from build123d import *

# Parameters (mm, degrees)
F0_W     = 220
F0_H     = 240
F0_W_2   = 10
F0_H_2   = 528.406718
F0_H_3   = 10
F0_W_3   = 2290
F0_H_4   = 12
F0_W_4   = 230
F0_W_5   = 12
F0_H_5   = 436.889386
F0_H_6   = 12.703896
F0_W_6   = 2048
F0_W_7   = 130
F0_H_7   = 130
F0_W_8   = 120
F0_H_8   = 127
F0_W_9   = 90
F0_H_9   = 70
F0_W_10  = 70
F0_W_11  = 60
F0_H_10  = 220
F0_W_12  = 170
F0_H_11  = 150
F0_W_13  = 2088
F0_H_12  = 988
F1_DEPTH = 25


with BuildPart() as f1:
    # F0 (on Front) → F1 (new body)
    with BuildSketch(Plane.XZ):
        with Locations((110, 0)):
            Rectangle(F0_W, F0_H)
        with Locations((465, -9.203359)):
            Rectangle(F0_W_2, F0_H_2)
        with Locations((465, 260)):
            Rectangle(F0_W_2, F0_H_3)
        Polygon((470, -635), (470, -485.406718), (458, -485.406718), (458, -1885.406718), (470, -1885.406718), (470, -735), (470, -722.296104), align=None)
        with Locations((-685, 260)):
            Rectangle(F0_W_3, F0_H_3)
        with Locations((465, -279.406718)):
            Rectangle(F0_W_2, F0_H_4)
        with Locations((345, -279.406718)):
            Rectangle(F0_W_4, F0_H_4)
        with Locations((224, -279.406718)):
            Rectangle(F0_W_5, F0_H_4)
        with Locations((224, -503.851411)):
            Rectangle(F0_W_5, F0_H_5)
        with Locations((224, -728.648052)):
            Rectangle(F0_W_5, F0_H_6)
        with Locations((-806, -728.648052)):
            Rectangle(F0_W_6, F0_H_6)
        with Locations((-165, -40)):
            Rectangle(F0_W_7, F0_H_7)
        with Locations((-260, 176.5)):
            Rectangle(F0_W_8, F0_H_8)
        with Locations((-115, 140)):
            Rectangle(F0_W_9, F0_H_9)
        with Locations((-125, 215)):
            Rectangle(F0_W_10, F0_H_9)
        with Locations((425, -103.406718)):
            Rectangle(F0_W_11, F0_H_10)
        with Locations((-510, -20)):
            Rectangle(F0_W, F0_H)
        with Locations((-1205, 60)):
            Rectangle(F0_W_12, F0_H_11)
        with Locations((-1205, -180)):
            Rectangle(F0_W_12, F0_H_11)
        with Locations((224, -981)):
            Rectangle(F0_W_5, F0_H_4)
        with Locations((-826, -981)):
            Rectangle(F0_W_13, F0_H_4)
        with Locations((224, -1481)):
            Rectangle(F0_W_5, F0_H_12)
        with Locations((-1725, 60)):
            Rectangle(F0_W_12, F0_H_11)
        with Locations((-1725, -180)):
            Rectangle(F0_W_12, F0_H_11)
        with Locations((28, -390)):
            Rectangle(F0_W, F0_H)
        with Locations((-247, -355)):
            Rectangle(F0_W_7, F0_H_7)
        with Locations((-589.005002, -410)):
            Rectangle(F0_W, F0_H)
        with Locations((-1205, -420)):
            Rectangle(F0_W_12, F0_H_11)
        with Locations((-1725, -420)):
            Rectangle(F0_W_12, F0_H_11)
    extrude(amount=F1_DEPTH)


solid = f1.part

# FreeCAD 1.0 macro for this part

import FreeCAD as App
import Part
import Sketcher
from FreeCAD import Vector
Q = App.Units.Quantity

doc = App.newDocument("Part")
body = doc.addObject("PartDesign::Body", "Body")
body.AllowCompound = True

# Sketch on XZ plane
sketch1 = body.newObject("Sketcher::SketchObject", "Sketch")
sketch1.AttachmentSupport = (doc.getObject("XZ_Plane"), [""])
sketch1.MapMode = "FlatFace"
sketch1.addGeometry(Part.LineSegment(Vector(0, 120, 0), Vector(0, -120, 0)), False)
sketch1.addGeometry(Part.LineSegment(Vector(0, -120, 0), Vector(220, -120, 0)), False)
sketch1.addGeometry(Part.LineSegment(Vector(220, -120, 0), Vector(220, 120, 0)), False)
sketch1.addGeometry(Part.LineSegment(Vector(220, 120, 0), Vector(0, 120, 0)), False)
sketch1.addGeometry(Part.LineSegment(Vector(470, 265, 0), Vector(-1830, 265, 0)), False)
sketch1.addGeometry(Part.LineSegment(Vector(-1830, 265, 0), Vector(-1830, 255, 0)), False)
sketch1.addGeometry(Part.LineSegment(Vector(-1830, 255, 0), Vector(460, 255, 0)), False)
sketch1.addGeometry(Part.LineSegment(Vector(460, 255, 0), Vector(460, -273.406718, 0)), False)
sketch1.addGeometry(Part.LineSegment(Vector(460, -273.406718, 0), Vector(218, -273.406718, 0)), False)
sketch1.addGeometry(Part.LineSegment(Vector(218, -273.406718, 0), Vector(218, -722.296104, 0)), False)
sketch1.addGeometry(Part.LineSegment(Vector(218, -722.296104, 0), Vector(-1830, -722.296104, 0)), False)
sketch1.addGeometry(Part.LineSegment(Vector(-1830, -722.296104, 0), Vector(-1830, -735, 0)), False)
sketch1.addGeometry(Part.LineSegment(Vector(-1830, -735, 0), Vector(230, -735, 0)), False)
sketch1.addGeometry(Part.LineSegment(Vector(230, -735, 0), Vector(230, -285.406718, 0)), False)
sketch1.addGeometry(Part.LineSegment(Vector(230, -285.406718, 0), Vector(470, -285.406718, 0)), False)
sketch1.addGeometry(Part.LineSegment(Vector(470, -285.406718, 0), Vector(470, 265, 0)), False)
sketch1.addGeometry(Part.LineSegment(Vector(470, -485.406718, 0), Vector(458, -485.406718, 0)), False)
sketch1.addGeometry(Part.LineSegment(Vector(458, -485.406718, 0), Vector(458, -1885.406718, 0)), False)
sketch1.addGeometry(Part.LineSegment(Vector(458, -1885.406718, 0), Vector(470, -1885.406718, 0)), False)
sketch1.addGeometry(Part.LineSegment(Vector(470, -1885.406718, 0), Vector(470, -485.406718, 0)), False)
sketch1.addGeometry(Part.LineSegment(Vector(-230, 25, 0), Vector(-230, -105, 0)), False)
sketch1.addGeometry(Part.LineSegment(Vector(-230, -105, 0), Vector(-100, -105, 0)), False)
sketch1.addGeometry(Part.LineSegment(Vector(-100, -105, 0), Vector(-100, 25, 0)), False)
sketch1.addGeometry(Part.LineSegment(Vector(-100, 25, 0), Vector(-230, 25, 0)), False)
sketch1.addGeometry(Part.LineSegment(Vector(-320, 240, 0), Vector(-320, 113, 0)), False)
sketch1.addGeometry(Part.LineSegment(Vector(-320, 113, 0), Vector(-200, 113, 0)), False)
sketch1.addGeometry(Part.LineSegment(Vector(-200, 113, 0), Vector(-200, 240, 0)), False)
sketch1.addGeometry(Part.LineSegment(Vector(-200, 240, 0), Vector(-320, 240, 0)), False)
sketch1.addGeometry(Part.LineSegment(Vector(-160, 175, 0), Vector(-160, 105, 0)), False)
sketch1.addGeometry(Part.LineSegment(Vector(-160, 105, 0), Vector(-70, 105, 0)), False)
sketch1.addGeometry(Part.LineSegment(Vector(-70, 105, 0), Vector(-70, 175, 0)), False)
sketch1.addGeometry(Part.LineSegment(Vector(-70, 175, 0), Vector(-160, 175, 0)), False)
sketch1.addGeometry(Part.LineSegment(Vector(-160, 250, 0), Vector(-160, 180, 0)), False)
sketch1.addGeometry(Part.LineSegment(Vector(-160, 180, 0), Vector(-90, 180, 0)), False)
sketch1.addGeometry(Part.LineSegment(Vector(-90, 180, 0), Vector(-90, 250, 0)), False)
sketch1.addGeometry(Part.LineSegment(Vector(-90, 250, 0), Vector(-160, 250, 0)), False)
sketch1.addGeometry(Part.LineSegment(Vector(395, 6.593282, 0), Vector(395, -213.406718, 0)), False)
sketch1.addGeometry(Part.LineSegment(Vector(395, -213.406718, 0), Vector(455, -213.406718, 0)), False)
sketch1.addGeometry(Part.LineSegment(Vector(455, -213.406718, 0), Vector(455, 6.593282, 0)), False)
sketch1.addGeometry(Part.LineSegment(Vector(455, 6.593282, 0), Vector(395, 6.593282, 0)), False)
sketch1.addGeometry(Part.LineSegment(Vector(-620, 100, 0), Vector(-620, -140, 0)), False)
sketch1.addGeometry(Part.LineSegment(Vector(-620, -140, 0), Vector(-400, -140, 0)), False)
sketch1.addGeometry(Part.LineSegment(Vector(-400, -140, 0), Vector(-400, 100, 0)), False)
sketch1.addGeometry(Part.LineSegment(Vector(-400, 100, 0), Vector(-620, 100, 0)), False)
sketch1.addGeometry(Part.LineSegment(Vector(-1290, 135, 0), Vector(-1290, -15, 0)), False)
sketch1.addGeometry(Part.LineSegment(Vector(-1290, -15, 0), Vector(-1120, -15, 0)), False)
sketch1.addGeometry(Part.LineSegment(Vector(-1120, -15, 0), Vector(-1120, 135, 0)), False)
sketch1.addGeometry(Part.LineSegment(Vector(-1120, 135, 0), Vector(-1290, 135, 0)), False)
sketch1.addGeometry(Part.LineSegment(Vector(-1290, -105, 0), Vector(-1290, -255, 0)), False)
sketch1.addGeometry(Part.LineSegment(Vector(-1290, -255, 0), Vector(-1120, -255, 0)), False)
sketch1.addGeometry(Part.LineSegment(Vector(-1120, -255, 0), Vector(-1120, -105, 0)), False)
sketch1.addGeometry(Part.LineSegment(Vector(-1120, -105, 0), Vector(-1290, -105, 0)), False)
sketch1.addGeometry(Part.LineSegment(Vector(230, -975, 0), Vector(-1870, -975, 0)), False)
sketch1.addGeometry(Part.LineSegment(Vector(-1870, -975, 0), Vector(-1870, -987, 0)), False)
sketch1.addGeometry(Part.LineSegment(Vector(-1870, -987, 0), Vector(218, -987, 0)), False)
sketch1.addGeometry(Part.LineSegment(Vector(218, -987, 0), Vector(218, -1975, 0)), False)
sketch1.addGeometry(Part.LineSegment(Vector(218, -1975, 0), Vector(230, -1975, 0)), False)
sketch1.addGeometry(Part.LineSegment(Vector(230, -1975, 0), Vector(230, -975, 0)), False)
sketch1.addGeometry(Part.LineSegment(Vector(-1810, 135, 0), Vector(-1810, -15, 0)), False)
sketch1.addGeometry(Part.LineSegment(Vector(-1810, -15, 0), Vector(-1640, -15, 0)), False)
sketch1.addGeometry(Part.LineSegment(Vector(-1640, -15, 0), Vector(-1640, 135, 0)), False)
sketch1.addGeometry(Part.LineSegment(Vector(-1640, 135, 0), Vector(-1810, 135, 0)), False)
sketch1.addGeometry(Part.LineSegment(Vector(-1810, -105, 0), Vector(-1810, -255, 0)), False)
sketch1.addGeometry(Part.LineSegment(Vector(-1810, -255, 0), Vector(-1640, -255, 0)), False)
sketch1.addGeometry(Part.LineSegment(Vector(-1640, -255, 0), Vector(-1640, -105, 0)), False)
sketch1.addGeometry(Part.LineSegment(Vector(-1640, -105, 0), Vector(-1810, -105, 0)), False)
sketch1.addGeometry(Part.LineSegment(Vector(-82, -270, 0), Vector(-82, -510, 0)), False)
sketch1.addGeometry(Part.LineSegment(Vector(-82, -510, 0), Vector(138, -510, 0)), False)
sketch1.addGeometry(Part.LineSegment(Vector(138, -510, 0), Vector(138, -270, 0)), False)
sketch1.addGeometry(Part.LineSegment(Vector(138, -270, 0), Vector(-82, -270, 0)), False)
sketch1.addGeometry(Part.LineSegment(Vector(-312, -290, 0), Vector(-312, -420, 0)), False)
sketch1.addGeometry(Part.LineSegment(Vector(-312, -420, 0), Vector(-182, -420, 0)), False)
sketch1.addGeometry(Part.LineSegment(Vector(-182, -420, 0), Vector(-182, -290, 0)), False)
sketch1.addGeometry(Part.LineSegment(Vector(-182, -290, 0), Vector(-312, -290, 0)), False)
sketch1.addGeometry(Part.LineSegment(Vector(-699.005002, -290, 0), Vector(-699.005002, -530, 0)), False)
sketch1.addGeometry(Part.LineSegment(Vector(-699.005002, -530, 0), Vector(-479.005002, -530, 0)), False)
sketch1.addGeometry(Part.LineSegment(Vector(-479.005002, -530, 0), Vector(-479.005002, -290, 0)), False)
sketch1.addGeometry(Part.LineSegment(Vector(-479.005002, -290, 0), Vector(-699.005002, -290, 0)), False)
sketch1.addGeometry(Part.LineSegment(Vector(-1290, -345, 0), Vector(-1290, -495, 0)), False)
sketch1.addGeometry(Part.LineSegment(Vector(-1290, -495, 0), Vector(-1120, -495, 0)), False)
sketch1.addGeometry(Part.LineSegment(Vector(-1120, -495, 0), Vector(-1120, -345, 0)), False)
sketch1.addGeometry(Part.LineSegment(Vector(-1120, -345, 0), Vector(-1290, -345, 0)), False)
sketch1.addGeometry(Part.LineSegment(Vector(-1810, -345, 0), Vector(-1810, -495, 0)), False)
sketch1.addGeometry(Part.LineSegment(Vector(-1810, -495, 0), Vector(-1640, -495, 0)), False)
sketch1.addGeometry(Part.LineSegment(Vector(-1640, -495, 0), Vector(-1640, -345, 0)), False)
sketch1.addGeometry(Part.LineSegment(Vector(-1640, -345, 0), Vector(-1810, -345, 0)), False)
sketch1.addConstraint(Sketcher.Constraint("Coincident", 0, 2, 1, 1))
sketch1.addConstraint(Sketcher.Constraint("Coincident", 1, 2, 2, 1))
sketch1.addConstraint(Sketcher.Constraint("Coincident", 2, 2, 3, 1))
sketch1.addConstraint(Sketcher.Constraint("Coincident", 3, 2, 0, 1))
sketch1.addConstraint(Sketcher.Constraint("Coincident", 4, 2, 5, 1))
sketch1.addConstraint(Sketcher.Constraint("Coincident", 5, 2, 6, 1))
sketch1.addConstraint(Sketcher.Constraint("Coincident", 6, 2, 7, 1))
sketch1.addConstraint(Sketcher.Constraint("Coincident", 7, 2, 8, 1))
sketch1.addConstraint(Sketcher.Constraint("Coincident", 8, 2, 9, 1))
sketch1.addConstraint(Sketcher.Constraint("Coincident", 9, 2, 10, 1))
sketch1.addConstraint(Sketcher.Constraint("Coincident", 10, 2, 11, 1))
sketch1.addConstraint(Sketcher.Constraint("Coincident", 11, 2, 12, 1))
sketch1.addConstraint(Sketcher.Constraint("Coincident", 12, 2, 13, 1))
sketch1.addConstraint(Sketcher.Constraint("Coincident", 13, 2, 14, 1))
sketch1.addConstraint(Sketcher.Constraint("Coincident", 14, 2, 15, 1))
sketch1.addConstraint(Sketcher.Constraint("Coincident", 15, 2, 4, 1))
sketch1.addConstraint(Sketcher.Constraint("Coincident", 16, 2, 17, 1))
sketch1.addConstraint(Sketcher.Constraint("Coincident", 17, 2, 18, 1))
sketch1.addConstraint(Sketcher.Constraint("Coincident", 18, 2, 19, 1))
sketch1.addConstraint(Sketcher.Constraint("Coincident", 19, 2, 16, 1))
sketch1.addConstraint(Sketcher.Constraint("Coincident", 20, 2, 21, 1))
sketch1.addConstraint(Sketcher.Constraint("Coincident", 21, 2, 22, 1))
sketch1.addConstraint(Sketcher.Constraint("Coincident", 22, 2, 23, 1))
sketch1.addConstraint(Sketcher.Constraint("Coincident", 23, 2, 20, 1))
sketch1.addConstraint(Sketcher.Constraint("Coincident", 24, 2, 25, 1))
sketch1.addConstraint(Sketcher.Constraint("Coincident", 25, 2, 26, 1))
sketch1.addConstraint(Sketcher.Constraint("Coincident", 26, 2, 27, 1))
sketch1.addConstraint(Sketcher.Constraint("Coincident", 27, 2, 24, 1))
sketch1.addConstraint(Sketcher.Constraint("Coincident", 28, 2, 29, 1))
sketch1.addConstraint(Sketcher.Constraint("Coincident", 29, 2, 30, 1))
sketch1.addConstraint(Sketcher.Constraint("Coincident", 30, 2, 31, 1))
sketch1.addConstraint(Sketcher.Constraint("Coincident", 31, 2, 28, 1))
sketch1.addConstraint(Sketcher.Constraint("Coincident", 32, 2, 33, 1))
sketch1.addConstraint(Sketcher.Constraint("Coincident", 33, 2, 34, 1))
sketch1.addConstraint(Sketcher.Constraint("Coincident", 34, 2, 35, 1))
sketch1.addConstraint(Sketcher.Constraint("Coincident", 35, 2, 32, 1))
sketch1.addConstraint(Sketcher.Constraint("Coincident", 36, 2, 37, 1))
sketch1.addConstraint(Sketcher.Constraint("Coincident", 37, 2, 38, 1))
sketch1.addConstraint(Sketcher.Constraint("Coincident", 38, 2, 39, 1))
sketch1.addConstraint(Sketcher.Constraint("Coincident", 39, 2, 36, 1))
sketch1.addConstraint(Sketcher.Constraint("Coincident", 40, 2, 41, 1))
sketch1.addConstraint(Sketcher.Constraint("Coincident", 41, 2, 42, 1))
sketch1.addConstraint(Sketcher.Constraint("Coincident", 42, 2, 43, 1))
sketch1.addConstraint(Sketcher.Constraint("Coincident", 43, 2, 40, 1))
sketch1.addConstraint(Sketcher.Constraint("Coincident", 44, 2, 45, 1))
sketch1.addConstraint(Sketcher.Constraint("Coincident", 45, 2, 46, 1))
sketch1.addConstraint(Sketcher.Constraint("Coincident", 46, 2, 47, 1))
sketch1.addConstraint(Sketcher.Constraint("Coincident", 47, 2, 44, 1))
sketch1.addConstraint(Sketcher.Constraint("Coincident", 48, 2, 49, 1))
sketch1.addConstraint(Sketcher.Constraint("Coincident", 49, 2, 50, 1))
sketch1.addConstraint(Sketcher.Constraint("Coincident", 50, 2, 51, 1))
sketch1.addConstraint(Sketcher.Constraint("Coincident", 51, 2, 48, 1))
sketch1.addConstraint(Sketcher.Constraint("Coincident", 52, 2, 53, 1))
sketch1.addConstraint(Sketcher.Constraint("Coincident", 53, 2, 54, 1))
sketch1.addConstraint(Sketcher.Constraint("Coincident", 54, 2, 55, 1))
sketch1.addConstraint(Sketcher.Constraint("Coincident", 55, 2, 56, 1))
sketch1.addConstraint(Sketcher.Constraint("Coincident", 56, 2, 57, 1))
sketch1.addConstraint(Sketcher.Constraint("Coincident", 57, 2, 52, 1))
sketch1.addConstraint(Sketcher.Constraint("Coincident", 58, 2, 59, 1))
sketch1.addConstraint(Sketcher.Constraint("Coincident", 59, 2, 60, 1))
sketch1.addConstraint(Sketcher.Constraint("Coincident", 60, 2, 61, 1))
sketch1.addConstraint(Sketcher.Constraint("Coincident", 61, 2, 58, 1))
sketch1.addConstraint(Sketcher.Constraint("Coincident", 62, 2, 63, 1))
sketch1.addConstraint(Sketcher.Constraint("Coincident", 63, 2, 64, 1))
sketch1.addConstraint(Sketcher.Constraint("Coincident", 64, 2, 65, 1))
sketch1.addConstraint(Sketcher.Constraint("Coincident", 65, 2, 62, 1))
sketch1.addConstraint(Sketcher.Constraint("Coincident", 66, 2, 67, 1))
sketch1.addConstraint(Sketcher.Constraint("Coincident", 67, 2, 68, 1))
sketch1.addConstraint(Sketcher.Constraint("Coincident", 68, 2, 69, 1))
sketch1.addConstraint(Sketcher.Constraint("Coincident", 69, 2, 66, 1))
sketch1.addConstraint(Sketcher.Constraint("Coincident", 70, 2, 71, 1))
sketch1.addConstraint(Sketcher.Constraint("Coincident", 71, 2, 72, 1))
sketch1.addConstraint(Sketcher.Constraint("Coincident", 72, 2, 73, 1))
sketch1.addConstraint(Sketcher.Constraint("Coincident", 73, 2, 70, 1))
sketch1.addConstraint(Sketcher.Constraint("Coincident", 74, 2, 75, 1))
sketch1.addConstraint(Sketcher.Constraint("Coincident", 75, 2, 76, 1))
sketch1.addConstraint(Sketcher.Constraint("Coincident", 76, 2, 77, 1))
sketch1.addConstraint(Sketcher.Constraint("Coincident", 77, 2, 74, 1))
sketch1.addConstraint(Sketcher.Constraint("Coincident", 78, 2, 79, 1))
sketch1.addConstraint(Sketcher.Constraint("Coincident", 79, 2, 80, 1))
sketch1.addConstraint(Sketcher.Constraint("Coincident", 80, 2, 81, 1))
sketch1.addConstraint(Sketcher.Constraint("Coincident", 81, 2, 78, 1))
sketch1.addConstraint(Sketcher.Constraint("Coincident", 82, 2, 83, 1))
sketch1.addConstraint(Sketcher.Constraint("Coincident", 83, 2, 84, 1))
sketch1.addConstraint(Sketcher.Constraint("Coincident", 84, 2, 85, 1))
sketch1.addConstraint(Sketcher.Constraint("Coincident", 85, 2, 82, 1))
sketch1.addConstraint(Sketcher.Constraint("Vertical", 0))
sketch1.addConstraint(Sketcher.Constraint("Horizontal", 1))
sketch1.addConstraint(Sketcher.Constraint("Vertical", 2))
sketch1.addConstraint(Sketcher.Constraint("Horizontal", 3))
sketch1.addConstraint(Sketcher.Constraint("Horizontal", 4))
sketch1.addConstraint(Sketcher.Constraint("Vertical", 5))
sketch1.addConstraint(Sketcher.Constraint("Horizontal", 6))
sketch1.addConstraint(Sketcher.Constraint("Vertical", 7))
sketch1.addConstraint(Sketcher.Constraint("Horizontal", 8))
sketch1.addConstraint(Sketcher.Constraint("Vertical", 9))
sketch1.addConstraint(Sketcher.Constraint("Horizontal", 10))
sketch1.addConstraint(Sketcher.Constraint("Vertical", 11))
sketch1.addConstraint(Sketcher.Constraint("Horizontal", 12))
sketch1.addConstraint(Sketcher.Constraint("Vertical", 13))
sketch1.addConstraint(Sketcher.Constraint("Horizontal", 14))
sketch1.addConstraint(Sketcher.Constraint("Vertical", 15))
sketch1.addConstraint(Sketcher.Constraint("Horizontal", 16))
sketch1.addConstraint(Sketcher.Constraint("Vertical", 17))
sketch1.addConstraint(Sketcher.Constraint("Horizontal", 18))
sketch1.addConstraint(Sketcher.Constraint("Vertical", 19))
sketch1.addConstraint(Sketcher.Constraint("Vertical", 20))
sketch1.addConstraint(Sketcher.Constraint("Horizontal", 21))
sketch1.addConstraint(Sketcher.Constraint("Vertical", 22))
sketch1.addConstraint(Sketcher.Constraint("Horizontal", 23))
sketch1.addConstraint(Sketcher.Constraint("Vertical", 24))
sketch1.addConstraint(Sketcher.Constraint("Horizontal", 25))
sketch1.addConstraint(Sketcher.Constraint("Vertical", 26))
sketch1.addConstraint(Sketcher.Constraint("Horizontal", 27))
sketch1.addConstraint(Sketcher.Constraint("Vertical", 28))
sketch1.addConstraint(Sketcher.Constraint("Horizontal", 29))
sketch1.addConstraint(Sketcher.Constraint("Vertical", 30))
sketch1.addConstraint(Sketcher.Constraint("Horizontal", 31))
sketch1.addConstraint(Sketcher.Constraint("Vertical", 32))
sketch1.addConstraint(Sketcher.Constraint("Horizontal", 33))
sketch1.addConstraint(Sketcher.Constraint("Vertical", 34))
sketch1.addConstraint(Sketcher.Constraint("Horizontal", 35))
sketch1.addConstraint(Sketcher.Constraint("Vertical", 36))
sketch1.addConstraint(Sketcher.Constraint("Horizontal", 37))
sketch1.addConstraint(Sketcher.Constraint("Vertical", 38))
sketch1.addConstraint(Sketcher.Constraint("Horizontal", 39))
sketch1.addConstraint(Sketcher.Constraint("Vertical", 40))
sketch1.addConstraint(Sketcher.Constraint("Horizontal", 41))
sketch1.addConstraint(Sketcher.Constraint("Vertical", 42))
sketch1.addConstraint(Sketcher.Constraint("Horizontal", 43))
sketch1.addConstraint(Sketcher.Constraint("Vertical", 44))
sketch1.addConstraint(Sketcher.Constraint("Horizontal", 45))
sketch1.addConstraint(Sketcher.Constraint("Vertical", 46))
sketch1.addConstraint(Sketcher.Constraint("Horizontal", 47))
sketch1.addConstraint(Sketcher.Constraint("Vertical", 48))
sketch1.addConstraint(Sketcher.Constraint("Horizontal", 49))
sketch1.addConstraint(Sketcher.Constraint("Vertical", 50))
sketch1.addConstraint(Sketcher.Constraint("Horizontal", 51))
sketch1.addConstraint(Sketcher.Constraint("Horizontal", 52))
sketch1.addConstraint(Sketcher.Constraint("Vertical", 53))
sketch1.addConstraint(Sketcher.Constraint("Horizontal", 54))
sketch1.addConstraint(Sketcher.Constraint("Vertical", 55))
sketch1.addConstraint(Sketcher.Constraint("Horizontal", 56))
sketch1.addConstraint(Sketcher.Constraint("Vertical", 57))
sketch1.addConstraint(Sketcher.Constraint("Vertical", 58))
sketch1.addConstraint(Sketcher.Constraint("Horizontal", 59))
sketch1.addConstraint(Sketcher.Constraint("Vertical", 60))
sketch1.addConstraint(Sketcher.Constraint("Horizontal", 61))
sketch1.addConstraint(Sketcher.Constraint("Vertical", 62))
sketch1.addConstraint(Sketcher.Constraint("Horizontal", 63))
sketch1.addConstraint(Sketcher.Constraint("Vertical", 64))
sketch1.addConstraint(Sketcher.Constraint("Horizontal", 65))
sketch1.addConstraint(Sketcher.Constraint("Vertical", 66))
sketch1.addConstraint(Sketcher.Constraint("Horizontal", 67))
sketch1.addConstraint(Sketcher.Constraint("Vertical", 68))
sketch1.addConstraint(Sketcher.Constraint("Horizontal", 69))
sketch1.addConstraint(Sketcher.Constraint("Vertical", 70))
sketch1.addConstraint(Sketcher.Constraint("Horizontal", 71))
sketch1.addConstraint(Sketcher.Constraint("Vertical", 72))
sketch1.addConstraint(Sketcher.Constraint("Horizontal", 73))
sketch1.addConstraint(Sketcher.Constraint("Vertical", 74))
sketch1.addConstraint(Sketcher.Constraint("Horizontal", 75))
sketch1.addConstraint(Sketcher.Constraint("Vertical", 76))
sketch1.addConstraint(Sketcher.Constraint("Horizontal", 77))
sketch1.addConstraint(Sketcher.Constraint("Vertical", 78))
sketch1.addConstraint(Sketcher.Constraint("Horizontal", 79))
sketch1.addConstraint(Sketcher.Constraint("Vertical", 80))
sketch1.addConstraint(Sketcher.Constraint("Horizontal", 81))
sketch1.addConstraint(Sketcher.Constraint("Vertical", 82))
sketch1.addConstraint(Sketcher.Constraint("Horizontal", 83))
sketch1.addConstraint(Sketcher.Constraint("Vertical", 84))
sketch1.addConstraint(Sketcher.Constraint("Horizontal", 85))
sketch1.addConstraint(Sketcher.Constraint("Symmetric", 0, 2, 3, 2, -1, 1))
sketch1.addConstraint(Sketcher.Constraint("Horizontal", 21, 2, 50, 2))
sketch1.addConstraint(Sketcher.Constraint("Horizontal", 45, 2, 58, 2))
sketch1.addConstraint(Sketcher.Constraint("Horizontal", 47, 2, 60, 2))
sketch1.addConstraint(Sketcher.Constraint("Horizontal", 49, 2, 62, 2))
sketch1.addConstraint(Sketcher.Constraint("Horizontal", 51, 2, 64, 2))
sketch1.addConstraint(Sketcher.Constraint("Horizontal", 73, 2, 76, 2))
sketch1.addConstraint(Sketcher.Constraint("Horizontal", 79, 2, 82, 2))
sketch1.addConstraint(Sketcher.Constraint("Horizontal", 81, 2, 84, 2))
sketch1.addConstraint(Sketcher.Constraint("Vertical", 5, 2, 10, 2))
sketch1.addConstraint(Sketcher.Constraint("Vertical", 15, 2, 18, 2))
sketch1.addConstraint(Sketcher.Constraint("Vertical", 31, 2, 32, 2))
sketch1.addConstraint(Sketcher.Constraint("Vertical", 47, 2, 48, 2))
sketch1.addConstraint(Sketcher.Constraint("Vertical", 46, 2, 49, 2))
sketch1.addConstraint(Sketcher.Constraint("Vertical", 9, 2, 54, 2))
sketch1.addConstraint(Sketcher.Constraint("Vertical", 13, 2, 56, 2))
sketch1.addConstraint(Sketcher.Constraint("Vertical", 61, 2, 62, 2))
sketch1.addConstraint(Sketcher.Constraint("Vertical", 60, 2, 63, 2))
sketch1.addConstraint(Sketcher.Constraint("Vertical", 51, 2, 78, 2))
sketch1.addConstraint(Sketcher.Constraint("Vertical", 50, 2, 79, 2))
sketch1.addConstraint(Sketcher.Constraint("Vertical", 65, 2, 82, 2))
sketch1.addConstraint(Sketcher.Constraint("Vertical", 64, 2, 83, 2))
sketch1.addConstraint(Sketcher.Constraint("Equal", 3, 41))
sketch1.addConstraint(Sketcher.Constraint("Equal", 18, 56))
sketch1.addConstraint(Sketcher.Constraint("Equal", 51, 59))
sketch1.addConstraint(Sketcher.Constraint("Equal", 43, 67))
sketch1.addConstraint(Sketcher.Constraint("Equal", 23, 71))
sketch1.addConstraint(Sketcher.Constraint("Equal", 69, 75))
sketch1.addConstraint(Sketcher.Constraint("Equal", 14, 0))
sketch1.addConstraint(Sketcher.Constraint("Equal", 73, 20))
sketch1.addConstraint(Sketcher.Constraint("Equal", 35, 28))
sketch1.addConstraint(Sketcher.Constraint("Equal", 30, 32))
sketch1.addConstraint(Sketcher.Constraint("Equal", 77, 36))
sketch1.addConstraint(Sketcher.Constraint("Equal", 2, 40))
sketch1.addConstraint(Sketcher.Constraint("Equal", 46, 48))
sketch1.addConstraint(Sketcher.Constraint("Equal", 56, 53))
sketch1.addConstraint(Sketcher.Constraint("Equal", 42, 66))
sketch1.addConstraint(Sketcher.Constraint("Equal", 22, 70))
sketch1.addConstraint(Sketcher.Constraint("Equal", 68, 74))
sketch1.addConstraint(Sketcher.Constraint("Equal", 64, 78))
sketch1.addConstraint(Sketcher.Constraint("DistanceX", 1, 1, 1, 2, Q("220 mm")))
sketch1.addConstraint(Sketcher.Constraint("DistanceX", 4, 2, 4, 1, Q("2300 mm")))
sketch1.addConstraint(Sketcher.Constraint("DistanceX", 6, 1, 6, 2, Q("2290 mm")))
sketch1.addConstraint(Sketcher.Constraint("DistanceX", 8, 2, 8, 1, Q("242 mm")))
sketch1.addConstraint(Sketcher.Constraint("DistanceX", 12, 1, 12, 2, Q("2060 mm")))
sketch1.addConstraint(Sketcher.Constraint("DistanceX", 21, 1, 21, 2, Q("130 mm")))
sketch1.addConstraint(Sketcher.Constraint("DistanceX", 25, 1, 25, 2, Q("120 mm")))
sketch1.addConstraint(Sketcher.Constraint("DistanceX", 29, 1, 29, 2, Q("90 mm")))
sketch1.addConstraint(Sketcher.Constraint("DistanceX", 33, 1, 33, 2, Q("70 mm")))
sketch1.addConstraint(Sketcher.Constraint("DistanceX", 37, 1, 37, 2, Q("60 mm")))
sketch1.addConstraint(Sketcher.Constraint("DistanceX", 45, 1, 45, 2, Q("170 mm")))
sketch1.addConstraint(Sketcher.Constraint("DistanceX", 52, 2, 52, 1, Q("2100 mm")))
sketch1.addConstraint(Sketcher.Constraint("DistanceY", 5, 2, 5, 1, Q("10 mm")))
sketch1.addConstraint(Sketcher.Constraint("DistanceY", 17, 2, 17, 1, Q("1400 mm")))
sketch1.addConstraint(Sketcher.Constraint("DistanceY", 24, 2, 24, 1, Q("127 mm")))
sketch1.addConstraint(Sketcher.Constraint("DistanceY", 44, 2, 44, 1, Q("150 mm")))
sketch1.addConstraint(Sketcher.Constraint("DistanceY", 55, 2, 55, 1, Q("988 mm")))
sketch1.addConstraint(Sketcher.Constraint("DistanceX", 4, 2, -1, 1, Q("1830 mm")))
sketch1.addConstraint(Sketcher.Constraint("DistanceY", -1, 1, 4, 2, Q("265 mm")))
sketch1.addConstraint(Sketcher.Constraint("DistanceY", 11, 2, -1, 1, Q("735 mm")))
sketch1.addConstraint(Sketcher.Constraint("DistanceX", 20, 2, -1, 1, Q("230 mm")))
sketch1.addConstraint(Sketcher.Constraint("DistanceY", 20, 2, -1, 1, Q("105 mm")))
sketch1.addConstraint(Sketcher.Constraint("DistanceX", 24, 2, -1, 1, Q("320 mm")))
sketch1.addConstraint(Sketcher.Constraint("DistanceY", -1, 1, 24, 2, Q("113 mm")))
sketch1.addConstraint(Sketcher.Constraint("DistanceX", 28, 2, -1, 1, Q("160 mm")))
sketch1.addConstraint(Sketcher.Constraint("DistanceY", -1, 1, 28, 2, Q("105 mm")))
sketch1.addConstraint(Sketcher.Constraint("DistanceY", -1, 1, 32, 2, Q("180 mm")))
sketch1.addConstraint(Sketcher.Constraint("DistanceX", -1, 1, 36, 2, Q("395 mm")))
sketch1.addConstraint(Sketcher.Constraint("DistanceX", 40, 2, -1, 1, Q("620 mm")))
sketch1.addConstraint(Sketcher.Constraint("DistanceY", 40, 2, -1, 1, Q("140 mm")))
sketch1.addConstraint(Sketcher.Constraint("DistanceX", 44, 2, -1, 1, Q("1290 mm")))
sketch1.addConstraint(Sketcher.Constraint("DistanceY", 44, 2, -1, 1, Q("15 mm")))
sketch1.addConstraint(Sketcher.Constraint("DistanceY", 52, 2, -1, 1, Q("975 mm")))
sketch1.addConstraint(Sketcher.Constraint("DistanceX", 58, 2, -1, 1, Q("1810 mm")))
sketch1.addConstraint(Sketcher.Constraint("DistanceX", 66, 2, -1, 1, Q("82 mm")))
sketch1.addConstraint(Sketcher.Constraint("DistanceY", 66, 2, -1, 1, Q("510 mm")))
sketch1.addConstraint(Sketcher.Constraint("DistanceX", 70, 2, -1, 1, Q("312 mm")))
sketch1.addConstraint(Sketcher.Constraint("DistanceY", 70, 2, -1, 1, Q("420 mm")))
sketch1.addConstraint(Sketcher.Constraint("DistanceY", 78, 2, -1, 1, Q("495 mm")))
sketch1.addConstraint(Sketcher.Constraint("DistanceX", 74, 2, -1, 1, Q("699.005002 mm")))
sketch1.addConstraint(Sketcher.Constraint("DistanceY", 7, 2, 7, 1, Q("528.406718 mm")))
sketch1.addConstraint(Sketcher.Constraint("DistanceY", 13, 1, 13, 2, Q("449.593282 mm")))
sketch1.addConstraint(Sketcher.Constraint("DistanceY", 9, 2, 9, 1, Q("448.889386 mm")))
sketch1.addConstraint(Sketcher.Constraint("DistanceY", 16, 2, -1, 1, Q("485.406718 mm")))
sketch1.addConstraint(Sketcher.Constraint("DistanceY", 36, 2, -1, 1, Q("213.406718 mm")))
pad1 = body.newObject("PartDesign::Pad", "Pad")
pad1.Profile = sketch1
pad1.Length = 25

doc.recompute()
